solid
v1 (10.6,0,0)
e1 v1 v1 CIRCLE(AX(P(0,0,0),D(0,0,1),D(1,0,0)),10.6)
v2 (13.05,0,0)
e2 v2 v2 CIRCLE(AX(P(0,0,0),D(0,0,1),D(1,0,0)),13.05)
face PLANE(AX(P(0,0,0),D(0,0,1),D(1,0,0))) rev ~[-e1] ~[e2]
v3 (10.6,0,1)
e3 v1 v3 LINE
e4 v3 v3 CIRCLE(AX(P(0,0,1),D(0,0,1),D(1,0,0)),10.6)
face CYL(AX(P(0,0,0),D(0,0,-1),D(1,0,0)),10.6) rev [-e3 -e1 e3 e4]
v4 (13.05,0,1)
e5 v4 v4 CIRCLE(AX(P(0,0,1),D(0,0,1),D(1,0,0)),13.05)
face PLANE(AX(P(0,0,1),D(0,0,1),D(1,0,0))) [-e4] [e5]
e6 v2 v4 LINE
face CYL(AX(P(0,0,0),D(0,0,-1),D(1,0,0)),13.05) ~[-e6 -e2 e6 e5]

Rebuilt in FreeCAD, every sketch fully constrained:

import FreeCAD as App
import Part
import Sketcher

V = App.Vector
Q = App.Units.Quantity

doc = App.newDocument("Part")
body = doc.addObject("PartDesign::Body", "Body")

# Sketch on XY plane
sketch1 = body.newObject("Sketcher::SketchObject", "Sketch")
sketch1.AttachmentSupport = (doc.getObject("XY_Plane"), [""])
sketch1.MapMode = "FlatFace"
sketch1.addGeometry(Part.Circle(V(0, 0, 0), V(0, 0, 1), 13.05), False)
sketch1.addGeometry(Part.Circle(V(0, 0, 0), V(0, 0, 1), 10.6), False)
sketch1.addConstraint(Sketcher.Constraint("Coincident", 0, 3, -1, 1))
sketch1.addConstraint(Sketcher.Constraint("Coincident", 1, 3, -1, 1))
sketch1.addConstraint(Sketcher.Constraint("Diameter", 0, Q("26.1 mm")))
sketch1.addConstraint(Sketcher.Constraint("Diameter", 1, Q("21.2 mm")))
pad1 = body.newObject("PartDesign::Pad", "Pad")
pad1.Profile = sketch1
pad1.Length = 1

doc.recompute()
